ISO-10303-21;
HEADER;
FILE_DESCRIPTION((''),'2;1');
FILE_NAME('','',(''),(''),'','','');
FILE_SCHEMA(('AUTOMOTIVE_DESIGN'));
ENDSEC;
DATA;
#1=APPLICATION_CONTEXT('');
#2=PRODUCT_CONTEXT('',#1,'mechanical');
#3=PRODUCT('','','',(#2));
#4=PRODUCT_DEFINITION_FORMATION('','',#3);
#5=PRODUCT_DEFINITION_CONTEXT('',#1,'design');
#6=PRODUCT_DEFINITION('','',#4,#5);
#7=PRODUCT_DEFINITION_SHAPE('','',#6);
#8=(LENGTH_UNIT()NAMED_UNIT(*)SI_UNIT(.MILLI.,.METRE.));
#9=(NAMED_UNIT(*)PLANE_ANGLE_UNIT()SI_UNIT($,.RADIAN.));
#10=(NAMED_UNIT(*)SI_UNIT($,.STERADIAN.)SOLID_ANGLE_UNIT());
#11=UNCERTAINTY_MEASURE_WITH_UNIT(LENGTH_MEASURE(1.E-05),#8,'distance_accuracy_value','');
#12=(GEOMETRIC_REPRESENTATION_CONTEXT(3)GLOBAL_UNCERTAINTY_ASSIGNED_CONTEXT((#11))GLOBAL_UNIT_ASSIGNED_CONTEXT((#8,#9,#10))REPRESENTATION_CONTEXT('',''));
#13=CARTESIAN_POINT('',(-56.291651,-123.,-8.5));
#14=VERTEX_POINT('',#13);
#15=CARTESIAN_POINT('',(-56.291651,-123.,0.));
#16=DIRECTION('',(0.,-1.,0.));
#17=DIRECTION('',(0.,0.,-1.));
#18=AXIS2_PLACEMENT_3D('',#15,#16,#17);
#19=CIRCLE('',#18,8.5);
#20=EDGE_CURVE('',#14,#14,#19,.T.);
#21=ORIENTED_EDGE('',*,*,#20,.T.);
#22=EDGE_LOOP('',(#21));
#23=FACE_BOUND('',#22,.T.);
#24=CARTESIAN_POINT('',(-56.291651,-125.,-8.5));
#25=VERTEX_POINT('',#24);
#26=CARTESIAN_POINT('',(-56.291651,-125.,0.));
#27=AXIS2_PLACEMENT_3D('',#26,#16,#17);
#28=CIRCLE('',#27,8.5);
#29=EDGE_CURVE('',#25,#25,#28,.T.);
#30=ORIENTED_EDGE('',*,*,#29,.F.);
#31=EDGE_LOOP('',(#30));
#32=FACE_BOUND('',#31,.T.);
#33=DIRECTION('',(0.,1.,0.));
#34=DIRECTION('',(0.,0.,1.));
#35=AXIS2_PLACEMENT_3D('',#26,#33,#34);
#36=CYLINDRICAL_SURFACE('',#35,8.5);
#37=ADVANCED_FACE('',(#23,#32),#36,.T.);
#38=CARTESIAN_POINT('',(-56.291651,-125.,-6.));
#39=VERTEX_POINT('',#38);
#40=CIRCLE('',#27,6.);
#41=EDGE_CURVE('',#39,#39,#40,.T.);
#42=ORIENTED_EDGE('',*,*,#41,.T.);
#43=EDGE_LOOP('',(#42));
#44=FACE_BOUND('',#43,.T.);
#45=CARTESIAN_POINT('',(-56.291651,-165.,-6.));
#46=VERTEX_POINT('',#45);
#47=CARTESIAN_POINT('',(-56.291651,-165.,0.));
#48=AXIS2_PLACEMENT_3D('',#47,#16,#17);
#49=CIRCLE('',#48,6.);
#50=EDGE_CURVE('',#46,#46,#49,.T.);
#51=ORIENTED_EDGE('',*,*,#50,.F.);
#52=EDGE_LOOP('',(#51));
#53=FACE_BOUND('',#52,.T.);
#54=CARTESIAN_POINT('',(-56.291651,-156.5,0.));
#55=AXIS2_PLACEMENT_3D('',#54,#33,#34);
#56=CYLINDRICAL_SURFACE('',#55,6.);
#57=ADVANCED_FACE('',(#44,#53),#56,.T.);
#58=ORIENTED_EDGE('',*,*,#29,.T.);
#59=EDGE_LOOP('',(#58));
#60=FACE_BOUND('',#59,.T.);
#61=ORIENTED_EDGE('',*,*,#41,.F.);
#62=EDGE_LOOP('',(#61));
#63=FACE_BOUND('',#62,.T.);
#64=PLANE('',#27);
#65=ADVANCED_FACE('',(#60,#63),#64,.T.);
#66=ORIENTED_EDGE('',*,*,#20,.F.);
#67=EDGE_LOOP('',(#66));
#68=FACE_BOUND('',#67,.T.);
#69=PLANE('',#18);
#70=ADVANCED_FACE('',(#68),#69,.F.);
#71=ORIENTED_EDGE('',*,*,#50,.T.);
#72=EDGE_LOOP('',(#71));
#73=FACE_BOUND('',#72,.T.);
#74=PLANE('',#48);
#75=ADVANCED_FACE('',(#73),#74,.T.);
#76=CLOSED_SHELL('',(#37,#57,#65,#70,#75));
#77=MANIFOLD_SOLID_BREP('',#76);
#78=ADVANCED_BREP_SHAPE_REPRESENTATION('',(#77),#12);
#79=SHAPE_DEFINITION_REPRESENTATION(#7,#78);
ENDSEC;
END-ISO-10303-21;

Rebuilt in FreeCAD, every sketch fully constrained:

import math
import FreeCAD as App
import Part
import Sketcher

V = App.Vector

doc = App.newDocument("Part")
body = doc.addObject("PartDesign::Body", "Body")

# Sketch on XZ plane
sketch1 = body.newObject("Sketcher::SketchObject", "Sketch")
sketch1.AttachmentSupport = (doc.getObject("XZ_Plane"), [""])
sketch1.MapMode = "FlatFace"
sketch1.AttachmentOffset = App.Placement(V(0, 0, 123), App.Rotation())
sketch1.addGeometry(Part.Circle(V(-56, 0, 0), V(0, 0, 1), 8), False)
sketch1.addConstraint(Sketcher.Constraint("PointOnObject", 0, 3, -1))
sketch1.addConstraint(Sketcher.Constraint("Diameter", 0, 17.0))
sketch1.addConstraint(Sketcher.Constraint("DistanceX", 0, 3, -1, 1, 56.291651))
pad1 = body.newObject("PartDesign::Pad", "Pad")
pad1.Profile = sketch1
pad1.Length = 2

# Sketch on XZ plane
sketch2 = body.newObject("Sketcher::SketchObject", "Sketch001")
sketch2.AttachmentSupport = (doc.getObject("XZ_Plane"), [""])
sketch2.MapMode = "FlatFace"
sketch2.AttachmentOffset = App.Placement(V(0, 0, 125), App.Rotation())
sketch2.addGeometry(Part.ArcOfCircle(Part.Circle(V(-56.3, 0, 0), V(0, 0, 1), 6), math.radians(35), math.radians(360)), False)
sketch2.addGeometry(Part.ArcOfCircle(Part.Circle(V(-56.3, 0, 0), V(0, 0, 1), 6), math.radians(0), math.radians(35)), False)
sketch2.addConstraint(Sketcher.Constraint("Tangent", 0, 1, 1, 2))
sketch2.addConstraint(Sketcher.Constraint("Coincident", 1, 1, 0, 2))
sketch2.addConstraint(Sketcher.Constraint("PointOnObject", 0, 3, -1))
sketch2.addConstraint(Sketcher.Constraint("PointOnObject", 1, 1, -1))
sketch2.addConstraint(Sketcher.Constraint("Radius", 0, 6.0))
sketch2.addConstraint(Sketcher.Constraint("DistanceX", 0, 3, -1, 1, 56.291651))
sketch2.addConstraint(Sketcher.Constraint("DistanceX", 0, 3, 0, 1, 4.907209))
pad2 = body.newObject("PartDesign::Pad", "Pad001")
pad2.Profile = sketch2
pad2.Length = 31.5

# Sketch on XZ plane
sketch3 = body.newObject("Sketcher::SketchObject", "Sketch002")
sketch3.AttachmentSupport = (doc.getObject("XZ_Plane"), [""])
sketch3.MapMode = "FlatFace"
sketch3.AttachmentOffset = App.Placement(V(0, 0, 156.5), App.Rotation())
sketch3.addGeometry(Part.ArcOfCircle(Part.Circle(V(-56.3, 0, 0), V(0, 0, 1), 6), math.radians(35), math.radians(360)), False)
sketch3.addGeometry(Part.ArcOfCircle(Part.Circle(V(-56.3, 0, 0), V(0, 0, 1), 6), math.radians(0), math.radians(35)), False)
sketch3.addConstraint(Sketcher.Constraint("Tangent", 0, 1, 1, 2))
sketch3.addConstraint(Sketcher.Constraint("Coincident", 1, 1, 0, 2))
sketch3.addConstraint(Sketcher.Constraint("PointOnObject", 0, 3, -1))
sketch3.addConstraint(Sketcher.Constraint("PointOnObject", 1, 1, -1))
sketch3.addConstraint(Sketcher.Constraint("Radius", 0, 6.0))
sketch3.addConstraint(Sketcher.Constraint("DistanceX", 0, 3, -1, 1, 56.291651))
sketch3.addConstraint(Sketcher.Constraint("DistanceX", 0, 3, 0, 1, 4.907209))
pad3 = body.newObject("PartDesign::Pad", "Pad002")
pad3.Profile = sketch3
pad3.Length = 0.5

# Sketch on XZ plane
sketch4 = body.newObject("Sketcher::SketchObject", "Sketch003")
sketch4.AttachmentSupport = (doc.getObject("XZ_Plane"), [""])
sketch4.MapMode = "FlatFace"
sketch4.AttachmentOffset = App.Placement(V(0, 0, 157), App.Rotation())
sketch4.addGeometry(Part.Circle(V(-56, 0, 0), V(0, 0, 1), 6), False)
sketch4.addConstraint(Sketcher.Constraint("PointOnObject", 0, 3, -1))
sketch4.addConstraint(Sketcher.Constraint("Diameter", 0, 12.0))
sketch4.addConstraint(Sketcher.Constraint("DistanceX", 0, 3, -1, 1, 56.291651))
pad4 = body.newObject("PartDesign::Pad", "Pad003")
pad4.Profile = sketch4
pad4.Length = 8

doc.recompute()
